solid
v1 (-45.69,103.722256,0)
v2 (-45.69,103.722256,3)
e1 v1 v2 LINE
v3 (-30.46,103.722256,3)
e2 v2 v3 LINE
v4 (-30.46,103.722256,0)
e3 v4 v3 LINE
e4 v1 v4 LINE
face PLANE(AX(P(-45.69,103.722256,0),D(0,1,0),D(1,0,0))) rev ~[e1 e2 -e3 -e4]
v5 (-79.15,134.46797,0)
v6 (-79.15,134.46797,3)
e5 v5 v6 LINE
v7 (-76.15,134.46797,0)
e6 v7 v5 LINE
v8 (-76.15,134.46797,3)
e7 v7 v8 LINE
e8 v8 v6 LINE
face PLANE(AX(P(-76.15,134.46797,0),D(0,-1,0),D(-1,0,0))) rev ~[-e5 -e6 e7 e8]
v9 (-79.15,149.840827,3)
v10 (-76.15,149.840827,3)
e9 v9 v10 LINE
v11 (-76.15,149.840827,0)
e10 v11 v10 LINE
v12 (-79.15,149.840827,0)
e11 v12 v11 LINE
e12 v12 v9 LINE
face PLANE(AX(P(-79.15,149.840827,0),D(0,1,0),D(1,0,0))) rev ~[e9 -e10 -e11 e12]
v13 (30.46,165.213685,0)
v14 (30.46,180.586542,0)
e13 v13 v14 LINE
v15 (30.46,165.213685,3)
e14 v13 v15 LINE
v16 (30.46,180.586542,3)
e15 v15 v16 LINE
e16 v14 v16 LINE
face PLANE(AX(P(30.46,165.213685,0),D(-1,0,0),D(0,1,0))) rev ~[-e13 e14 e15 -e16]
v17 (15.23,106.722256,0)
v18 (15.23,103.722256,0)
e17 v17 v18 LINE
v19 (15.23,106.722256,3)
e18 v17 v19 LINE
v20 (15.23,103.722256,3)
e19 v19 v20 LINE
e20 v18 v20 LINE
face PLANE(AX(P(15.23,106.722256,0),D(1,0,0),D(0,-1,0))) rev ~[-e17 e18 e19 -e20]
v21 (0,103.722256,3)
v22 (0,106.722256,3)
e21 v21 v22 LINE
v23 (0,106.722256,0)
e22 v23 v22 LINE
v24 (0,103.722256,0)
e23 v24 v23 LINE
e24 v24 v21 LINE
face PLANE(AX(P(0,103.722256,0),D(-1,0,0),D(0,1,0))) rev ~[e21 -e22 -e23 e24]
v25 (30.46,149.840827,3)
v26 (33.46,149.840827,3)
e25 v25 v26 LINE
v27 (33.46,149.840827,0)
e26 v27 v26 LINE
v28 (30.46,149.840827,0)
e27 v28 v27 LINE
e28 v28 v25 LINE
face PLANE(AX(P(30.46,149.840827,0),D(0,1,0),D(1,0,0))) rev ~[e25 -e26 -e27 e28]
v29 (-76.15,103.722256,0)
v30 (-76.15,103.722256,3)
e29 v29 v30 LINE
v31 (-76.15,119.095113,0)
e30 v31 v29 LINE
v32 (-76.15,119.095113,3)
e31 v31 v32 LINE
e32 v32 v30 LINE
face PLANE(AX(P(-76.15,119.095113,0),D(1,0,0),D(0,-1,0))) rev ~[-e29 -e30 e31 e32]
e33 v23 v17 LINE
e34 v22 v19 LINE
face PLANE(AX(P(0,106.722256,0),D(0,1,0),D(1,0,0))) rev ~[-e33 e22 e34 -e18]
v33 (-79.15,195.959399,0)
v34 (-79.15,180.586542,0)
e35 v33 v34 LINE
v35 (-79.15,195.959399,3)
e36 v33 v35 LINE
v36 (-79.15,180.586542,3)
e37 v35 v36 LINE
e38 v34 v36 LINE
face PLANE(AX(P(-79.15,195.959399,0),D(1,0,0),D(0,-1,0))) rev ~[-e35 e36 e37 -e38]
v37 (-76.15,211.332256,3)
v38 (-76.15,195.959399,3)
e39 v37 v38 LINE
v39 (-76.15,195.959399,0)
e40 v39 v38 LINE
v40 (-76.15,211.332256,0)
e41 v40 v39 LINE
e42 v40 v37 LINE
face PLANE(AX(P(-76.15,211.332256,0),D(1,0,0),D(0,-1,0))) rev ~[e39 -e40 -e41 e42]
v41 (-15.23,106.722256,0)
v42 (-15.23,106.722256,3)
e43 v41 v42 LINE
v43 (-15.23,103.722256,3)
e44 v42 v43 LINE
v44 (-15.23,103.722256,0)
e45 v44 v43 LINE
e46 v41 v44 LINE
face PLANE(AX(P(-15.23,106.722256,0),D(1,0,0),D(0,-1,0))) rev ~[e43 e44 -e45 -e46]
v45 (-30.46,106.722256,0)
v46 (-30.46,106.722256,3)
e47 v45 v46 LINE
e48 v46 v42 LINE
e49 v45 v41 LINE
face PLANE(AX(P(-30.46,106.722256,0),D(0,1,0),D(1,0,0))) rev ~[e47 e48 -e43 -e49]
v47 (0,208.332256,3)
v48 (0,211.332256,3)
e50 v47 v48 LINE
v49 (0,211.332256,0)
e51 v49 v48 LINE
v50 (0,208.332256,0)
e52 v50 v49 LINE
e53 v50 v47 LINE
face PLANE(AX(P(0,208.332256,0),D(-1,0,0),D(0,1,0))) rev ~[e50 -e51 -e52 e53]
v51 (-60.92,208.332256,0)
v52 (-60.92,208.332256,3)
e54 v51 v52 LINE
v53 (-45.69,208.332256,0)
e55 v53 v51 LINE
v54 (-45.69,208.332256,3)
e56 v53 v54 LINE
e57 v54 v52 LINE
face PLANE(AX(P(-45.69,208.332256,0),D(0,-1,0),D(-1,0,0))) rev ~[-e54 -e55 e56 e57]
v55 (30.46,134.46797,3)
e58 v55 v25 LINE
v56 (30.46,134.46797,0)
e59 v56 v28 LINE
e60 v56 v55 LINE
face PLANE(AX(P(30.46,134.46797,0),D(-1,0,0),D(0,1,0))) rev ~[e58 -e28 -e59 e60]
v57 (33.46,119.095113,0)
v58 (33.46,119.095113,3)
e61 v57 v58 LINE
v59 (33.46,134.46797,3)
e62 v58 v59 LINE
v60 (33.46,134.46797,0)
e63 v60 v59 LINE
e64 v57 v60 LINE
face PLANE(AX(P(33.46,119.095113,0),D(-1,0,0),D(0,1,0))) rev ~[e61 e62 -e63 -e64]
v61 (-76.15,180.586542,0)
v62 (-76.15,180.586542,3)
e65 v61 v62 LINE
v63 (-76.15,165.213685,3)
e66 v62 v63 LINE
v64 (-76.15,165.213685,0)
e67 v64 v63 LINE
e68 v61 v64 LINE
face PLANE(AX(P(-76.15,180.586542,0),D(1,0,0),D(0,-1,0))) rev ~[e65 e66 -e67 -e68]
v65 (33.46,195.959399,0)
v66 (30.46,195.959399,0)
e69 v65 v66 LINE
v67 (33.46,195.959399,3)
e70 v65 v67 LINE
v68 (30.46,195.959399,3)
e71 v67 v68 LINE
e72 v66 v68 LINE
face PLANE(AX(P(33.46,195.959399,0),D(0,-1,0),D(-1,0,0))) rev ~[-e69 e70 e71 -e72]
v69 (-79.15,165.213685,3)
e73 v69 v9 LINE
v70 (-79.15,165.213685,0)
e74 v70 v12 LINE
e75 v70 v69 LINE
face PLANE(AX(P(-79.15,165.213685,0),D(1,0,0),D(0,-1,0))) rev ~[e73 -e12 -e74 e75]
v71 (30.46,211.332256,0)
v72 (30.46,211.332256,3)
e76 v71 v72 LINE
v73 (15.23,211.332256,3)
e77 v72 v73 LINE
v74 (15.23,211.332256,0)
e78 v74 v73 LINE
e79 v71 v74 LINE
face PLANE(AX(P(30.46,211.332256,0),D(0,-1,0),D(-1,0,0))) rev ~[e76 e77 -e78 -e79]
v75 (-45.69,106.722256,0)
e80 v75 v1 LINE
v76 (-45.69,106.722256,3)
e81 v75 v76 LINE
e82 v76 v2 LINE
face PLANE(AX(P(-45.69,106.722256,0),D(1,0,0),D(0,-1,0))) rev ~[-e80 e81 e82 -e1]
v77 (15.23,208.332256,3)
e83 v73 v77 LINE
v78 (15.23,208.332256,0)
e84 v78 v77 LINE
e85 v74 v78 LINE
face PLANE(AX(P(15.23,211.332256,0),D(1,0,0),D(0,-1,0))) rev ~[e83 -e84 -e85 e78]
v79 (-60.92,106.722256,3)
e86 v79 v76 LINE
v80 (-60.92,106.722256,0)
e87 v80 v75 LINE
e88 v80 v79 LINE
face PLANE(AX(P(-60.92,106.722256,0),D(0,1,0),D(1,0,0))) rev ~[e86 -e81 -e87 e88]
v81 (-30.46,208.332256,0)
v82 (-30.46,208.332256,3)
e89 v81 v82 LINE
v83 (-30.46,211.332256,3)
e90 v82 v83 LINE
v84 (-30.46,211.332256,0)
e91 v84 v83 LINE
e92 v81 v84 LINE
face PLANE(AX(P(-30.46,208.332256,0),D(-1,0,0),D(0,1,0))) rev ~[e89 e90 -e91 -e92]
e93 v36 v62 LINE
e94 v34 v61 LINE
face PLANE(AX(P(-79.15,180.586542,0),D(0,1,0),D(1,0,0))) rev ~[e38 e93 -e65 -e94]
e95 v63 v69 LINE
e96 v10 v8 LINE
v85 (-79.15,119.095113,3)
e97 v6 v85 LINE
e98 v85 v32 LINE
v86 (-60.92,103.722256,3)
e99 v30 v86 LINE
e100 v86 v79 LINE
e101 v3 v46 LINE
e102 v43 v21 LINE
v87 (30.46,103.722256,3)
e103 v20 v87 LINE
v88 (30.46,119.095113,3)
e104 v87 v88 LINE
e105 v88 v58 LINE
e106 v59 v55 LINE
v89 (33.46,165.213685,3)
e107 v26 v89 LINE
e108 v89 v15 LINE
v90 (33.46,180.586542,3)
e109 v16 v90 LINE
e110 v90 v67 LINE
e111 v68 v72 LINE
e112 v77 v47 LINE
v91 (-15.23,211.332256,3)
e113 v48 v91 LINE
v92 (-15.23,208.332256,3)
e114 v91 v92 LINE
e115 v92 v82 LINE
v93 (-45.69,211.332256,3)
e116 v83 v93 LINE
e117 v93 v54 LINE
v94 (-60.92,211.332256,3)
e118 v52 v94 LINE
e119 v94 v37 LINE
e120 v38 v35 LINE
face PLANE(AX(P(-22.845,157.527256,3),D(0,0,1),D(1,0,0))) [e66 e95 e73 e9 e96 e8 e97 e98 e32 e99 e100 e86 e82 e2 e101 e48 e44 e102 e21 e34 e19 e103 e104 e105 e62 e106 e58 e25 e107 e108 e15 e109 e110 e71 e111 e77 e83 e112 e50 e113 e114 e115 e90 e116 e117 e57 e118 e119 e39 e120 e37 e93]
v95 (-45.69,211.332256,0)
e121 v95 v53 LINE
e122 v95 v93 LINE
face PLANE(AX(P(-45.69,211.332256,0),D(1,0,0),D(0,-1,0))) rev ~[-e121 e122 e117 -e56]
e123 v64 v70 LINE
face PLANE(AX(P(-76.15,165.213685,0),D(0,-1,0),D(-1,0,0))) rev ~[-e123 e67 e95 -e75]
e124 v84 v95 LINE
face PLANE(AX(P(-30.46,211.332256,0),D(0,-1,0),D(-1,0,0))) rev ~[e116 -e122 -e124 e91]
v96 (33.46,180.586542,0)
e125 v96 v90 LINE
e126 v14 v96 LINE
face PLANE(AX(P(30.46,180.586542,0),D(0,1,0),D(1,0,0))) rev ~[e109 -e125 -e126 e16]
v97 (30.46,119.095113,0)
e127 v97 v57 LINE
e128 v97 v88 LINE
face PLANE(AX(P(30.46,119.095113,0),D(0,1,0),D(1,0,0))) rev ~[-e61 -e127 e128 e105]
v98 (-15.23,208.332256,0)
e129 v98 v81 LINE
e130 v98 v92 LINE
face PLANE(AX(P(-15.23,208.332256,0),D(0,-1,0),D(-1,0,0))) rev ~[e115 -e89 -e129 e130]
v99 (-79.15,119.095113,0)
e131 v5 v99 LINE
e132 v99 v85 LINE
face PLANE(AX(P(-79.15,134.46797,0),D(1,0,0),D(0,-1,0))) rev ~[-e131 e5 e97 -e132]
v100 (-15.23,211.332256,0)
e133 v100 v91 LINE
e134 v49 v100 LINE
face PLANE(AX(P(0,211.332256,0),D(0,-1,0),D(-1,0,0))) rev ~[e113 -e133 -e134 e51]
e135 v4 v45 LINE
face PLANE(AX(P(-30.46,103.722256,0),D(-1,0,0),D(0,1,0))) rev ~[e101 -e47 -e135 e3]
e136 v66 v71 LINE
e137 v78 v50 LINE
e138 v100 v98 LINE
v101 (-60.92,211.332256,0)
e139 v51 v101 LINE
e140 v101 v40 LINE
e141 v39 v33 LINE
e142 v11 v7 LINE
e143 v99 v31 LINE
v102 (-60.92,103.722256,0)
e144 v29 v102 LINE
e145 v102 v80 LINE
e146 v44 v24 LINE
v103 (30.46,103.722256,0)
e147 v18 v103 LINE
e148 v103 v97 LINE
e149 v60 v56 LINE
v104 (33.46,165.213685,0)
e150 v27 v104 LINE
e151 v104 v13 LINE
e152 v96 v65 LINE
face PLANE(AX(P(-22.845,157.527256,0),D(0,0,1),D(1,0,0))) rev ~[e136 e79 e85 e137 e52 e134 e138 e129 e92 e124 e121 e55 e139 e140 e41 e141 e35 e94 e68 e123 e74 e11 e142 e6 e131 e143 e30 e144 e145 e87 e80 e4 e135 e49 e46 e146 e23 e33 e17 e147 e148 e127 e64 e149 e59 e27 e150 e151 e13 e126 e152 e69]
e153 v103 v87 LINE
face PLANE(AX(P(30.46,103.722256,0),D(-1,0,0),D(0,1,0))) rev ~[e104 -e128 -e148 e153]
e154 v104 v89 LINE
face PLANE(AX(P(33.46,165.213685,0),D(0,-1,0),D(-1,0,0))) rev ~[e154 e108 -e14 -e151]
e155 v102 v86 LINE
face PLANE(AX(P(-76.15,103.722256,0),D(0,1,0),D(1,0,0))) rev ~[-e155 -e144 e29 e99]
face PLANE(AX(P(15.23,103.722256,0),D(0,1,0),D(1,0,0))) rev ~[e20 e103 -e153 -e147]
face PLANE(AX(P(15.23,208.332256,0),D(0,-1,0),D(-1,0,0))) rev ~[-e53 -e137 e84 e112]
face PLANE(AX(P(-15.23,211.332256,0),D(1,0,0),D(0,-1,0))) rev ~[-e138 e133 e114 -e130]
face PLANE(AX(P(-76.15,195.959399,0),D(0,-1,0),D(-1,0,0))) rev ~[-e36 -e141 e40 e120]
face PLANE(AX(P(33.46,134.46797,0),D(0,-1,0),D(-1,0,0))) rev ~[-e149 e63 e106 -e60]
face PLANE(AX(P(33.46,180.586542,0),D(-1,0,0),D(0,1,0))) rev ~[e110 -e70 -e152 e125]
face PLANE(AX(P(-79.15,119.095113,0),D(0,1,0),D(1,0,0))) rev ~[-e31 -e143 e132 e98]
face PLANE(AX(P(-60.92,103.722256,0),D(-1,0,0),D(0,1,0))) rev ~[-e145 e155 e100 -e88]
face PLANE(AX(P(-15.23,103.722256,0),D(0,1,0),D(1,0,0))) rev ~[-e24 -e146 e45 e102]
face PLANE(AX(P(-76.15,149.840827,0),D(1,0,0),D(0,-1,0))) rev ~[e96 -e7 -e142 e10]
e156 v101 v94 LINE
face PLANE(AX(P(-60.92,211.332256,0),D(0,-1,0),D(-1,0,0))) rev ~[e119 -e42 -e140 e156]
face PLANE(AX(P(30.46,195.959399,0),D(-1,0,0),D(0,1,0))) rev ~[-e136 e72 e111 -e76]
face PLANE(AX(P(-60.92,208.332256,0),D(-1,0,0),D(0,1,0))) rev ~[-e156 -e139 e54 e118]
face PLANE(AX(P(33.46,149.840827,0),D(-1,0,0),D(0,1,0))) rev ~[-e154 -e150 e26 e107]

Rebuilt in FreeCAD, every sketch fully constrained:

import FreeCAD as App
import Part
import Sketcher
Q = App.Units.Quantity


def add_polygon(sketch, points):
    """Adds a closed chain of lines whose ends are joined by coincident constraints."""
    first, n = sketch.GeometryCount, len(points)
    for a, b in zip(points, points[1:] + points[:1]):
        sketch.addGeometry(Part.LineSegment(App.Vector(*a, 0), App.Vector(*b, 0)), False)
    for i in range(n):
        sketch.addConstraint(Sketcher.Constraint("Coincident", first + i, 2, first + (i + 1) % n, 1))

doc = App.newDocument("Part")
body = doc.addObject("PartDesign::Body", "Body")

sketch1 = body.newObject("Sketcher::SketchObject", "Sketch")
sketch1.AttachmentSupport = (doc.getObject("XY_Plane"), [""])
sketch1.MapMode = "FlatFace"
add_polygon(sketch1, [(-76.2, 211.3), (-76.2, 196), (-79.2, 196), (-79.2, 180.6), (-76.2, 180.6), (-76.2, 165.2), (-79.2, 165.2), (-79.2, 149.8), (-76.2, 149.8), (-76.2, 134.5), (-79.2, 134.5), (-79.2, 119.1), (-76.2, 119.1), (-76.2, 103.7), (-60.9, 103.7), (-60.9, 106.7), (-45.7, 106.7), (-45.7, 103.7), (-30.5, 103.7), (-30.5, 106.7), (-15.2, 106.7), (-15.2, 103.7), (0, 103.7), (0, 106.7), (15.2, 106.7), (15.2, 103.7), (30.5, 103.7), (30.5, 119.1), (33.5, 119.1), (33.5, 134.5), (30.5, 134.5), (30.5, 149.8), (33.5, 149.8), (33.5, 165.2), (30.5, 165.2), (30.5, 180.6), (33.5, 180.6), (33.5, 196), (30.5, 196), (30.5, 211.3), (15.2, 211.3), (15.2, 208.3), (0, 208.3), (0, 211.3), (-15.2, 211.3), (-15.2, 208.3), (-30.5, 208.3), (-30.5, 211.3), (-45.7, 211.3), (-45.7, 208.3), (-60.9, 208.3), (-60.9, 211.3)])
sketch1.addConstraint(Sketcher.Constraint("Vertical", 0))
sketch1.addConstraint(Sketcher.Constraint("Horizontal", 1))
sketch1.addConstraint(Sketcher.Constraint("Vertical", 2))
sketch1.addConstraint(Sketcher.Constraint("Horizontal", 3))
sketch1.addConstraint(Sketcher.Constraint("Vertical", 4))
sketch1.addConstraint(Sketcher.Constraint("Horizontal", 5))
sketch1.addConstraint(Sketcher.Constraint("Vertical", 6))
sketch1.addConstraint(Sketcher.Constraint("Horizontal", 7))
sketch1.addConstraint(Sketcher.Constraint("Vertical", 8))
sketch1.addConstraint(Sketcher.Constraint("Horizontal", 9))
sketch1.addConstraint(Sketcher.Constraint("Vertical", 10))
sketch1.addConstraint(Sketcher.Constraint("Horizontal", 11))
sketch1.addConstraint(Sketcher.Constraint("Vertical", 12))
sketch1.addConstraint(Sketcher.Constraint("Horizontal", 13))
sketch1.addConstraint(Sketcher.Constraint("Vertical", 14))
sketch1.addConstraint(Sketcher.Constraint("Horizontal", 15))
sketch1.addConstraint(Sketcher.Constraint("Vertical", 16))
sketch1.addConstraint(Sketcher.Constraint("Horizontal", 17))
sketch1.addConstraint(Sketcher.Constraint("Vertical", 18))
sketch1.addConstraint(Sketcher.Constraint("Horizontal", 19))
sketch1.addConstraint(Sketcher.Constraint("Vertical", 20))
sketch1.addConstraint(Sketcher.Constraint("Horizontal", 21))
sketch1.addConstraint(Sketcher.Constraint("Vertical", 22))
sketch1.addConstraint(Sketcher.Constraint("Horizontal", 23))
sketch1.addConstraint(Sketcher.Constraint("Vertical", 24))
sketch1.addConstraint(Sketcher.Constraint("Horizontal", 25))
sketch1.addConstraint(Sketcher.Constraint("Vertical", 26))
sketch1.addConstraint(Sketcher.Constraint("Horizontal", 27))
sketch1.addConstraint(Sketcher.Constraint("Vertical", 28))
sketch1.addConstraint(Sketcher.Constraint("Horizontal", 29))
sketch1.addConstraint(Sketcher.Constraint("Vertical", 30))
sketch1.addConstraint(Sketcher.Constraint("Horizontal", 31))
sketch1.addConstraint(Sketcher.Constraint("Vertical", 32))
sketch1.addConstraint(Sketcher.Constraint("Horizontal", 33))
sketch1.addConstraint(Sketcher.Constraint("Vertical", 34))
sketch1.addConstraint(Sketcher.Constraint("Horizontal", 35))
sketch1.addConstraint(Sketcher.Constraint("Vertical", 36))
sketch1.addConstraint(Sketcher.Constraint("Horizontal", 37))
sketch1.addConstraint(Sketcher.Constraint("Vertical", 38))
sketch1.addConstraint(Sketcher.Constraint("Horizontal", 39))
sketch1.addConstraint(Sketcher.Constraint("Vertical", 40))
sketch1.addConstraint(Sketcher.Constraint("Horizontal", 41))
sketch1.addConstraint(Sketcher.Constraint("Vertical", 42))
sketch1.addConstraint(Sketcher.Constraint("Horizontal", 43))
sketch1.addConstraint(Sketcher.Constraint("Vertical", 44))
sketch1.addConstraint(Sketcher.Constraint("Horizontal", 45))
sketch1.addConstraint(Sketcher.Constraint("Vertical", 46))
sketch1.addConstraint(Sketcher.Constraint("Horizontal", 47))
sketch1.addConstraint(Sketcher.Constraint("Vertical", 48))
sketch1.addConstraint(Sketcher.Constraint("Horizontal", 49))
sketch1.addConstraint(Sketcher.Constraint("Vertical", 50))
sketch1.addConstraint(Sketcher.Constraint("Horizontal", 51))
sketch1.addConstraint(Sketcher.Constraint("Symmetric", 19, 2, 23, 2, -2))
sketch1.addConstraint(Sketcher.Constraint("Symmetric", 17, 2, 25, 2, -2))
sketch1.addConstraint(Sketcher.Constraint("Symmetric", 39, 2, 43, 2, -2))
sketch1.addConstraint(Sketcher.Constraint("Symmetric", 38, 2, 46, 2, -2))
sketch1.addConstraint(Sketcher.Constraint("PointOnObject", 21, 2, -2))
sketch1.addConstraint(Sketcher.Constraint("PointOnObject", 41, 2, -2))
sketch1.addConstraint(Sketcher.Constraint("Horizontal", 13, 2, 16, 2))
sketch1.addConstraint(Sketcher.Constraint("Horizontal", 15, 2, 18, 2))
sketch1.addConstraint(Sketcher.Constraint("Horizontal", 17, 2, 20, 2))
sketch1.addConstraint(Sketcher.Constraint("Horizontal", 11, 2, 26, 2))
sketch1.addConstraint(Sketcher.Constraint("Horizontal", 9, 2, 28, 2))
sketch1.addConstraint(Sketcher.Constraint("Horizontal", 7, 2, 30, 2))
sketch1.addConstraint(Sketcher.Constraint("Horizontal", 5, 2, 32, 2))
sketch1.addConstraint(Sketcher.Constraint("Horizontal", 3, 2, 34, 2))
sketch1.addConstraint(Sketcher.Constraint("Horizontal", 1, 2, 36, 2))
sketch1.addConstraint(Sketcher.Constraint("Horizontal", 41, 2, 44, 2))
sketch1.addConstraint(Sketcher.Constraint("Horizontal", 45, 2, 48, 2))
sketch1.addConstraint(Sketcher.Constraint("Horizontal", 47, 2, 50, 2))
sketch1.addConstraint(Sketcher.Constraint("Vertical", 0, 2, 3, 2))
sketch1.addConstraint(Sketcher.Constraint("Vertical", 2, 2, 5, 2))
sketch1.addConstraint(Sketcher.Constraint("Vertical", 4, 2, 7, 2))
sketch1.addConstraint(Sketcher.Constraint("Vertical", 6, 2, 9, 2))
sketch1.addConstraint(Sketcher.Constraint("Vertical", 8, 2, 11, 2))
sketch1.addConstraint(Sketcher.Constraint("Vertical", 26, 2, 29, 2))
sketch1.addConstraint(Sketcher.Constraint("Vertical", 28, 2, 31, 2))
sketch1.addConstraint(Sketcher.Constraint("Vertical", 30, 2, 33, 2))
sketch1.addConstraint(Sketcher.Constraint("Vertical", 32, 2, 35, 2))
sketch1.addConstraint(Sketcher.Constraint("Vertical", 34, 2, 37, 2))
sketch1.addConstraint(Sketcher.Constraint("Vertical", 24, 2, 39, 2))
sketch1.addConstraint(Sketcher.Constraint("Vertical", 16, 2, 47, 2))
sketch1.addConstraint(Sketcher.Constraint("Vertical", 14, 2, 49, 2))
sketch1.addConstraint(Sketcher.Constraint("Equal", 13, 15))
sketch1.addConstraint(Sketcher.Constraint("Equal", 15, 17))
sketch1.addConstraint(Sketcher.Constraint("Equal", 17, 19))
sketch1.addConstraint(Sketcher.Constraint("Equal", 19, 21))
sketch1.addConstraint(Sketcher.Constraint("Equal", 11, 27))
sketch1.addConstraint(Sketcher.Constraint("Equal", 0, 2))
sketch1.addConstraint(Sketcher.Constraint("Equal", 2, 4))
sketch1.addConstraint(Sketcher.Constraint("Equal", 4, 6))
sketch1.addConstraint(Sketcher.Constraint("Equal", 6, 8))
sketch1.addConstraint(Sketcher.Constraint("Equal", 8, 10))
sketch1.addConstraint(Sketcher.Constraint("Equal", 10, 12))
sketch1.addConstraint(Sketcher.Constraint("Equal", 37, 14))
sketch1.addConstraint(Sketcher.Constraint("Equal", 24, 40))
sketch1.addConstraint(Sketcher.Constraint("DistanceX", 1, 2, 1, 1, Q("3 mm")))
sketch1.addConstraint(Sketcher.Constraint("DistanceX", 13, 1, 13, 2, Q("15.23 mm")))
sketch1.addConstraint(Sketcher.Constraint("DistanceY", -1, 1, 0, 2, Q("195.959399 mm")))
sketch1.addConstraint(Sketcher.Constraint("DistanceY", 0, 2, 0, 1, Q("15.372857 mm")))
pad1 = body.newObject("PartDesign::Pad", "Pad")
pad1.Profile = sketch1
pad1.Length = 3

doc.recompute()
